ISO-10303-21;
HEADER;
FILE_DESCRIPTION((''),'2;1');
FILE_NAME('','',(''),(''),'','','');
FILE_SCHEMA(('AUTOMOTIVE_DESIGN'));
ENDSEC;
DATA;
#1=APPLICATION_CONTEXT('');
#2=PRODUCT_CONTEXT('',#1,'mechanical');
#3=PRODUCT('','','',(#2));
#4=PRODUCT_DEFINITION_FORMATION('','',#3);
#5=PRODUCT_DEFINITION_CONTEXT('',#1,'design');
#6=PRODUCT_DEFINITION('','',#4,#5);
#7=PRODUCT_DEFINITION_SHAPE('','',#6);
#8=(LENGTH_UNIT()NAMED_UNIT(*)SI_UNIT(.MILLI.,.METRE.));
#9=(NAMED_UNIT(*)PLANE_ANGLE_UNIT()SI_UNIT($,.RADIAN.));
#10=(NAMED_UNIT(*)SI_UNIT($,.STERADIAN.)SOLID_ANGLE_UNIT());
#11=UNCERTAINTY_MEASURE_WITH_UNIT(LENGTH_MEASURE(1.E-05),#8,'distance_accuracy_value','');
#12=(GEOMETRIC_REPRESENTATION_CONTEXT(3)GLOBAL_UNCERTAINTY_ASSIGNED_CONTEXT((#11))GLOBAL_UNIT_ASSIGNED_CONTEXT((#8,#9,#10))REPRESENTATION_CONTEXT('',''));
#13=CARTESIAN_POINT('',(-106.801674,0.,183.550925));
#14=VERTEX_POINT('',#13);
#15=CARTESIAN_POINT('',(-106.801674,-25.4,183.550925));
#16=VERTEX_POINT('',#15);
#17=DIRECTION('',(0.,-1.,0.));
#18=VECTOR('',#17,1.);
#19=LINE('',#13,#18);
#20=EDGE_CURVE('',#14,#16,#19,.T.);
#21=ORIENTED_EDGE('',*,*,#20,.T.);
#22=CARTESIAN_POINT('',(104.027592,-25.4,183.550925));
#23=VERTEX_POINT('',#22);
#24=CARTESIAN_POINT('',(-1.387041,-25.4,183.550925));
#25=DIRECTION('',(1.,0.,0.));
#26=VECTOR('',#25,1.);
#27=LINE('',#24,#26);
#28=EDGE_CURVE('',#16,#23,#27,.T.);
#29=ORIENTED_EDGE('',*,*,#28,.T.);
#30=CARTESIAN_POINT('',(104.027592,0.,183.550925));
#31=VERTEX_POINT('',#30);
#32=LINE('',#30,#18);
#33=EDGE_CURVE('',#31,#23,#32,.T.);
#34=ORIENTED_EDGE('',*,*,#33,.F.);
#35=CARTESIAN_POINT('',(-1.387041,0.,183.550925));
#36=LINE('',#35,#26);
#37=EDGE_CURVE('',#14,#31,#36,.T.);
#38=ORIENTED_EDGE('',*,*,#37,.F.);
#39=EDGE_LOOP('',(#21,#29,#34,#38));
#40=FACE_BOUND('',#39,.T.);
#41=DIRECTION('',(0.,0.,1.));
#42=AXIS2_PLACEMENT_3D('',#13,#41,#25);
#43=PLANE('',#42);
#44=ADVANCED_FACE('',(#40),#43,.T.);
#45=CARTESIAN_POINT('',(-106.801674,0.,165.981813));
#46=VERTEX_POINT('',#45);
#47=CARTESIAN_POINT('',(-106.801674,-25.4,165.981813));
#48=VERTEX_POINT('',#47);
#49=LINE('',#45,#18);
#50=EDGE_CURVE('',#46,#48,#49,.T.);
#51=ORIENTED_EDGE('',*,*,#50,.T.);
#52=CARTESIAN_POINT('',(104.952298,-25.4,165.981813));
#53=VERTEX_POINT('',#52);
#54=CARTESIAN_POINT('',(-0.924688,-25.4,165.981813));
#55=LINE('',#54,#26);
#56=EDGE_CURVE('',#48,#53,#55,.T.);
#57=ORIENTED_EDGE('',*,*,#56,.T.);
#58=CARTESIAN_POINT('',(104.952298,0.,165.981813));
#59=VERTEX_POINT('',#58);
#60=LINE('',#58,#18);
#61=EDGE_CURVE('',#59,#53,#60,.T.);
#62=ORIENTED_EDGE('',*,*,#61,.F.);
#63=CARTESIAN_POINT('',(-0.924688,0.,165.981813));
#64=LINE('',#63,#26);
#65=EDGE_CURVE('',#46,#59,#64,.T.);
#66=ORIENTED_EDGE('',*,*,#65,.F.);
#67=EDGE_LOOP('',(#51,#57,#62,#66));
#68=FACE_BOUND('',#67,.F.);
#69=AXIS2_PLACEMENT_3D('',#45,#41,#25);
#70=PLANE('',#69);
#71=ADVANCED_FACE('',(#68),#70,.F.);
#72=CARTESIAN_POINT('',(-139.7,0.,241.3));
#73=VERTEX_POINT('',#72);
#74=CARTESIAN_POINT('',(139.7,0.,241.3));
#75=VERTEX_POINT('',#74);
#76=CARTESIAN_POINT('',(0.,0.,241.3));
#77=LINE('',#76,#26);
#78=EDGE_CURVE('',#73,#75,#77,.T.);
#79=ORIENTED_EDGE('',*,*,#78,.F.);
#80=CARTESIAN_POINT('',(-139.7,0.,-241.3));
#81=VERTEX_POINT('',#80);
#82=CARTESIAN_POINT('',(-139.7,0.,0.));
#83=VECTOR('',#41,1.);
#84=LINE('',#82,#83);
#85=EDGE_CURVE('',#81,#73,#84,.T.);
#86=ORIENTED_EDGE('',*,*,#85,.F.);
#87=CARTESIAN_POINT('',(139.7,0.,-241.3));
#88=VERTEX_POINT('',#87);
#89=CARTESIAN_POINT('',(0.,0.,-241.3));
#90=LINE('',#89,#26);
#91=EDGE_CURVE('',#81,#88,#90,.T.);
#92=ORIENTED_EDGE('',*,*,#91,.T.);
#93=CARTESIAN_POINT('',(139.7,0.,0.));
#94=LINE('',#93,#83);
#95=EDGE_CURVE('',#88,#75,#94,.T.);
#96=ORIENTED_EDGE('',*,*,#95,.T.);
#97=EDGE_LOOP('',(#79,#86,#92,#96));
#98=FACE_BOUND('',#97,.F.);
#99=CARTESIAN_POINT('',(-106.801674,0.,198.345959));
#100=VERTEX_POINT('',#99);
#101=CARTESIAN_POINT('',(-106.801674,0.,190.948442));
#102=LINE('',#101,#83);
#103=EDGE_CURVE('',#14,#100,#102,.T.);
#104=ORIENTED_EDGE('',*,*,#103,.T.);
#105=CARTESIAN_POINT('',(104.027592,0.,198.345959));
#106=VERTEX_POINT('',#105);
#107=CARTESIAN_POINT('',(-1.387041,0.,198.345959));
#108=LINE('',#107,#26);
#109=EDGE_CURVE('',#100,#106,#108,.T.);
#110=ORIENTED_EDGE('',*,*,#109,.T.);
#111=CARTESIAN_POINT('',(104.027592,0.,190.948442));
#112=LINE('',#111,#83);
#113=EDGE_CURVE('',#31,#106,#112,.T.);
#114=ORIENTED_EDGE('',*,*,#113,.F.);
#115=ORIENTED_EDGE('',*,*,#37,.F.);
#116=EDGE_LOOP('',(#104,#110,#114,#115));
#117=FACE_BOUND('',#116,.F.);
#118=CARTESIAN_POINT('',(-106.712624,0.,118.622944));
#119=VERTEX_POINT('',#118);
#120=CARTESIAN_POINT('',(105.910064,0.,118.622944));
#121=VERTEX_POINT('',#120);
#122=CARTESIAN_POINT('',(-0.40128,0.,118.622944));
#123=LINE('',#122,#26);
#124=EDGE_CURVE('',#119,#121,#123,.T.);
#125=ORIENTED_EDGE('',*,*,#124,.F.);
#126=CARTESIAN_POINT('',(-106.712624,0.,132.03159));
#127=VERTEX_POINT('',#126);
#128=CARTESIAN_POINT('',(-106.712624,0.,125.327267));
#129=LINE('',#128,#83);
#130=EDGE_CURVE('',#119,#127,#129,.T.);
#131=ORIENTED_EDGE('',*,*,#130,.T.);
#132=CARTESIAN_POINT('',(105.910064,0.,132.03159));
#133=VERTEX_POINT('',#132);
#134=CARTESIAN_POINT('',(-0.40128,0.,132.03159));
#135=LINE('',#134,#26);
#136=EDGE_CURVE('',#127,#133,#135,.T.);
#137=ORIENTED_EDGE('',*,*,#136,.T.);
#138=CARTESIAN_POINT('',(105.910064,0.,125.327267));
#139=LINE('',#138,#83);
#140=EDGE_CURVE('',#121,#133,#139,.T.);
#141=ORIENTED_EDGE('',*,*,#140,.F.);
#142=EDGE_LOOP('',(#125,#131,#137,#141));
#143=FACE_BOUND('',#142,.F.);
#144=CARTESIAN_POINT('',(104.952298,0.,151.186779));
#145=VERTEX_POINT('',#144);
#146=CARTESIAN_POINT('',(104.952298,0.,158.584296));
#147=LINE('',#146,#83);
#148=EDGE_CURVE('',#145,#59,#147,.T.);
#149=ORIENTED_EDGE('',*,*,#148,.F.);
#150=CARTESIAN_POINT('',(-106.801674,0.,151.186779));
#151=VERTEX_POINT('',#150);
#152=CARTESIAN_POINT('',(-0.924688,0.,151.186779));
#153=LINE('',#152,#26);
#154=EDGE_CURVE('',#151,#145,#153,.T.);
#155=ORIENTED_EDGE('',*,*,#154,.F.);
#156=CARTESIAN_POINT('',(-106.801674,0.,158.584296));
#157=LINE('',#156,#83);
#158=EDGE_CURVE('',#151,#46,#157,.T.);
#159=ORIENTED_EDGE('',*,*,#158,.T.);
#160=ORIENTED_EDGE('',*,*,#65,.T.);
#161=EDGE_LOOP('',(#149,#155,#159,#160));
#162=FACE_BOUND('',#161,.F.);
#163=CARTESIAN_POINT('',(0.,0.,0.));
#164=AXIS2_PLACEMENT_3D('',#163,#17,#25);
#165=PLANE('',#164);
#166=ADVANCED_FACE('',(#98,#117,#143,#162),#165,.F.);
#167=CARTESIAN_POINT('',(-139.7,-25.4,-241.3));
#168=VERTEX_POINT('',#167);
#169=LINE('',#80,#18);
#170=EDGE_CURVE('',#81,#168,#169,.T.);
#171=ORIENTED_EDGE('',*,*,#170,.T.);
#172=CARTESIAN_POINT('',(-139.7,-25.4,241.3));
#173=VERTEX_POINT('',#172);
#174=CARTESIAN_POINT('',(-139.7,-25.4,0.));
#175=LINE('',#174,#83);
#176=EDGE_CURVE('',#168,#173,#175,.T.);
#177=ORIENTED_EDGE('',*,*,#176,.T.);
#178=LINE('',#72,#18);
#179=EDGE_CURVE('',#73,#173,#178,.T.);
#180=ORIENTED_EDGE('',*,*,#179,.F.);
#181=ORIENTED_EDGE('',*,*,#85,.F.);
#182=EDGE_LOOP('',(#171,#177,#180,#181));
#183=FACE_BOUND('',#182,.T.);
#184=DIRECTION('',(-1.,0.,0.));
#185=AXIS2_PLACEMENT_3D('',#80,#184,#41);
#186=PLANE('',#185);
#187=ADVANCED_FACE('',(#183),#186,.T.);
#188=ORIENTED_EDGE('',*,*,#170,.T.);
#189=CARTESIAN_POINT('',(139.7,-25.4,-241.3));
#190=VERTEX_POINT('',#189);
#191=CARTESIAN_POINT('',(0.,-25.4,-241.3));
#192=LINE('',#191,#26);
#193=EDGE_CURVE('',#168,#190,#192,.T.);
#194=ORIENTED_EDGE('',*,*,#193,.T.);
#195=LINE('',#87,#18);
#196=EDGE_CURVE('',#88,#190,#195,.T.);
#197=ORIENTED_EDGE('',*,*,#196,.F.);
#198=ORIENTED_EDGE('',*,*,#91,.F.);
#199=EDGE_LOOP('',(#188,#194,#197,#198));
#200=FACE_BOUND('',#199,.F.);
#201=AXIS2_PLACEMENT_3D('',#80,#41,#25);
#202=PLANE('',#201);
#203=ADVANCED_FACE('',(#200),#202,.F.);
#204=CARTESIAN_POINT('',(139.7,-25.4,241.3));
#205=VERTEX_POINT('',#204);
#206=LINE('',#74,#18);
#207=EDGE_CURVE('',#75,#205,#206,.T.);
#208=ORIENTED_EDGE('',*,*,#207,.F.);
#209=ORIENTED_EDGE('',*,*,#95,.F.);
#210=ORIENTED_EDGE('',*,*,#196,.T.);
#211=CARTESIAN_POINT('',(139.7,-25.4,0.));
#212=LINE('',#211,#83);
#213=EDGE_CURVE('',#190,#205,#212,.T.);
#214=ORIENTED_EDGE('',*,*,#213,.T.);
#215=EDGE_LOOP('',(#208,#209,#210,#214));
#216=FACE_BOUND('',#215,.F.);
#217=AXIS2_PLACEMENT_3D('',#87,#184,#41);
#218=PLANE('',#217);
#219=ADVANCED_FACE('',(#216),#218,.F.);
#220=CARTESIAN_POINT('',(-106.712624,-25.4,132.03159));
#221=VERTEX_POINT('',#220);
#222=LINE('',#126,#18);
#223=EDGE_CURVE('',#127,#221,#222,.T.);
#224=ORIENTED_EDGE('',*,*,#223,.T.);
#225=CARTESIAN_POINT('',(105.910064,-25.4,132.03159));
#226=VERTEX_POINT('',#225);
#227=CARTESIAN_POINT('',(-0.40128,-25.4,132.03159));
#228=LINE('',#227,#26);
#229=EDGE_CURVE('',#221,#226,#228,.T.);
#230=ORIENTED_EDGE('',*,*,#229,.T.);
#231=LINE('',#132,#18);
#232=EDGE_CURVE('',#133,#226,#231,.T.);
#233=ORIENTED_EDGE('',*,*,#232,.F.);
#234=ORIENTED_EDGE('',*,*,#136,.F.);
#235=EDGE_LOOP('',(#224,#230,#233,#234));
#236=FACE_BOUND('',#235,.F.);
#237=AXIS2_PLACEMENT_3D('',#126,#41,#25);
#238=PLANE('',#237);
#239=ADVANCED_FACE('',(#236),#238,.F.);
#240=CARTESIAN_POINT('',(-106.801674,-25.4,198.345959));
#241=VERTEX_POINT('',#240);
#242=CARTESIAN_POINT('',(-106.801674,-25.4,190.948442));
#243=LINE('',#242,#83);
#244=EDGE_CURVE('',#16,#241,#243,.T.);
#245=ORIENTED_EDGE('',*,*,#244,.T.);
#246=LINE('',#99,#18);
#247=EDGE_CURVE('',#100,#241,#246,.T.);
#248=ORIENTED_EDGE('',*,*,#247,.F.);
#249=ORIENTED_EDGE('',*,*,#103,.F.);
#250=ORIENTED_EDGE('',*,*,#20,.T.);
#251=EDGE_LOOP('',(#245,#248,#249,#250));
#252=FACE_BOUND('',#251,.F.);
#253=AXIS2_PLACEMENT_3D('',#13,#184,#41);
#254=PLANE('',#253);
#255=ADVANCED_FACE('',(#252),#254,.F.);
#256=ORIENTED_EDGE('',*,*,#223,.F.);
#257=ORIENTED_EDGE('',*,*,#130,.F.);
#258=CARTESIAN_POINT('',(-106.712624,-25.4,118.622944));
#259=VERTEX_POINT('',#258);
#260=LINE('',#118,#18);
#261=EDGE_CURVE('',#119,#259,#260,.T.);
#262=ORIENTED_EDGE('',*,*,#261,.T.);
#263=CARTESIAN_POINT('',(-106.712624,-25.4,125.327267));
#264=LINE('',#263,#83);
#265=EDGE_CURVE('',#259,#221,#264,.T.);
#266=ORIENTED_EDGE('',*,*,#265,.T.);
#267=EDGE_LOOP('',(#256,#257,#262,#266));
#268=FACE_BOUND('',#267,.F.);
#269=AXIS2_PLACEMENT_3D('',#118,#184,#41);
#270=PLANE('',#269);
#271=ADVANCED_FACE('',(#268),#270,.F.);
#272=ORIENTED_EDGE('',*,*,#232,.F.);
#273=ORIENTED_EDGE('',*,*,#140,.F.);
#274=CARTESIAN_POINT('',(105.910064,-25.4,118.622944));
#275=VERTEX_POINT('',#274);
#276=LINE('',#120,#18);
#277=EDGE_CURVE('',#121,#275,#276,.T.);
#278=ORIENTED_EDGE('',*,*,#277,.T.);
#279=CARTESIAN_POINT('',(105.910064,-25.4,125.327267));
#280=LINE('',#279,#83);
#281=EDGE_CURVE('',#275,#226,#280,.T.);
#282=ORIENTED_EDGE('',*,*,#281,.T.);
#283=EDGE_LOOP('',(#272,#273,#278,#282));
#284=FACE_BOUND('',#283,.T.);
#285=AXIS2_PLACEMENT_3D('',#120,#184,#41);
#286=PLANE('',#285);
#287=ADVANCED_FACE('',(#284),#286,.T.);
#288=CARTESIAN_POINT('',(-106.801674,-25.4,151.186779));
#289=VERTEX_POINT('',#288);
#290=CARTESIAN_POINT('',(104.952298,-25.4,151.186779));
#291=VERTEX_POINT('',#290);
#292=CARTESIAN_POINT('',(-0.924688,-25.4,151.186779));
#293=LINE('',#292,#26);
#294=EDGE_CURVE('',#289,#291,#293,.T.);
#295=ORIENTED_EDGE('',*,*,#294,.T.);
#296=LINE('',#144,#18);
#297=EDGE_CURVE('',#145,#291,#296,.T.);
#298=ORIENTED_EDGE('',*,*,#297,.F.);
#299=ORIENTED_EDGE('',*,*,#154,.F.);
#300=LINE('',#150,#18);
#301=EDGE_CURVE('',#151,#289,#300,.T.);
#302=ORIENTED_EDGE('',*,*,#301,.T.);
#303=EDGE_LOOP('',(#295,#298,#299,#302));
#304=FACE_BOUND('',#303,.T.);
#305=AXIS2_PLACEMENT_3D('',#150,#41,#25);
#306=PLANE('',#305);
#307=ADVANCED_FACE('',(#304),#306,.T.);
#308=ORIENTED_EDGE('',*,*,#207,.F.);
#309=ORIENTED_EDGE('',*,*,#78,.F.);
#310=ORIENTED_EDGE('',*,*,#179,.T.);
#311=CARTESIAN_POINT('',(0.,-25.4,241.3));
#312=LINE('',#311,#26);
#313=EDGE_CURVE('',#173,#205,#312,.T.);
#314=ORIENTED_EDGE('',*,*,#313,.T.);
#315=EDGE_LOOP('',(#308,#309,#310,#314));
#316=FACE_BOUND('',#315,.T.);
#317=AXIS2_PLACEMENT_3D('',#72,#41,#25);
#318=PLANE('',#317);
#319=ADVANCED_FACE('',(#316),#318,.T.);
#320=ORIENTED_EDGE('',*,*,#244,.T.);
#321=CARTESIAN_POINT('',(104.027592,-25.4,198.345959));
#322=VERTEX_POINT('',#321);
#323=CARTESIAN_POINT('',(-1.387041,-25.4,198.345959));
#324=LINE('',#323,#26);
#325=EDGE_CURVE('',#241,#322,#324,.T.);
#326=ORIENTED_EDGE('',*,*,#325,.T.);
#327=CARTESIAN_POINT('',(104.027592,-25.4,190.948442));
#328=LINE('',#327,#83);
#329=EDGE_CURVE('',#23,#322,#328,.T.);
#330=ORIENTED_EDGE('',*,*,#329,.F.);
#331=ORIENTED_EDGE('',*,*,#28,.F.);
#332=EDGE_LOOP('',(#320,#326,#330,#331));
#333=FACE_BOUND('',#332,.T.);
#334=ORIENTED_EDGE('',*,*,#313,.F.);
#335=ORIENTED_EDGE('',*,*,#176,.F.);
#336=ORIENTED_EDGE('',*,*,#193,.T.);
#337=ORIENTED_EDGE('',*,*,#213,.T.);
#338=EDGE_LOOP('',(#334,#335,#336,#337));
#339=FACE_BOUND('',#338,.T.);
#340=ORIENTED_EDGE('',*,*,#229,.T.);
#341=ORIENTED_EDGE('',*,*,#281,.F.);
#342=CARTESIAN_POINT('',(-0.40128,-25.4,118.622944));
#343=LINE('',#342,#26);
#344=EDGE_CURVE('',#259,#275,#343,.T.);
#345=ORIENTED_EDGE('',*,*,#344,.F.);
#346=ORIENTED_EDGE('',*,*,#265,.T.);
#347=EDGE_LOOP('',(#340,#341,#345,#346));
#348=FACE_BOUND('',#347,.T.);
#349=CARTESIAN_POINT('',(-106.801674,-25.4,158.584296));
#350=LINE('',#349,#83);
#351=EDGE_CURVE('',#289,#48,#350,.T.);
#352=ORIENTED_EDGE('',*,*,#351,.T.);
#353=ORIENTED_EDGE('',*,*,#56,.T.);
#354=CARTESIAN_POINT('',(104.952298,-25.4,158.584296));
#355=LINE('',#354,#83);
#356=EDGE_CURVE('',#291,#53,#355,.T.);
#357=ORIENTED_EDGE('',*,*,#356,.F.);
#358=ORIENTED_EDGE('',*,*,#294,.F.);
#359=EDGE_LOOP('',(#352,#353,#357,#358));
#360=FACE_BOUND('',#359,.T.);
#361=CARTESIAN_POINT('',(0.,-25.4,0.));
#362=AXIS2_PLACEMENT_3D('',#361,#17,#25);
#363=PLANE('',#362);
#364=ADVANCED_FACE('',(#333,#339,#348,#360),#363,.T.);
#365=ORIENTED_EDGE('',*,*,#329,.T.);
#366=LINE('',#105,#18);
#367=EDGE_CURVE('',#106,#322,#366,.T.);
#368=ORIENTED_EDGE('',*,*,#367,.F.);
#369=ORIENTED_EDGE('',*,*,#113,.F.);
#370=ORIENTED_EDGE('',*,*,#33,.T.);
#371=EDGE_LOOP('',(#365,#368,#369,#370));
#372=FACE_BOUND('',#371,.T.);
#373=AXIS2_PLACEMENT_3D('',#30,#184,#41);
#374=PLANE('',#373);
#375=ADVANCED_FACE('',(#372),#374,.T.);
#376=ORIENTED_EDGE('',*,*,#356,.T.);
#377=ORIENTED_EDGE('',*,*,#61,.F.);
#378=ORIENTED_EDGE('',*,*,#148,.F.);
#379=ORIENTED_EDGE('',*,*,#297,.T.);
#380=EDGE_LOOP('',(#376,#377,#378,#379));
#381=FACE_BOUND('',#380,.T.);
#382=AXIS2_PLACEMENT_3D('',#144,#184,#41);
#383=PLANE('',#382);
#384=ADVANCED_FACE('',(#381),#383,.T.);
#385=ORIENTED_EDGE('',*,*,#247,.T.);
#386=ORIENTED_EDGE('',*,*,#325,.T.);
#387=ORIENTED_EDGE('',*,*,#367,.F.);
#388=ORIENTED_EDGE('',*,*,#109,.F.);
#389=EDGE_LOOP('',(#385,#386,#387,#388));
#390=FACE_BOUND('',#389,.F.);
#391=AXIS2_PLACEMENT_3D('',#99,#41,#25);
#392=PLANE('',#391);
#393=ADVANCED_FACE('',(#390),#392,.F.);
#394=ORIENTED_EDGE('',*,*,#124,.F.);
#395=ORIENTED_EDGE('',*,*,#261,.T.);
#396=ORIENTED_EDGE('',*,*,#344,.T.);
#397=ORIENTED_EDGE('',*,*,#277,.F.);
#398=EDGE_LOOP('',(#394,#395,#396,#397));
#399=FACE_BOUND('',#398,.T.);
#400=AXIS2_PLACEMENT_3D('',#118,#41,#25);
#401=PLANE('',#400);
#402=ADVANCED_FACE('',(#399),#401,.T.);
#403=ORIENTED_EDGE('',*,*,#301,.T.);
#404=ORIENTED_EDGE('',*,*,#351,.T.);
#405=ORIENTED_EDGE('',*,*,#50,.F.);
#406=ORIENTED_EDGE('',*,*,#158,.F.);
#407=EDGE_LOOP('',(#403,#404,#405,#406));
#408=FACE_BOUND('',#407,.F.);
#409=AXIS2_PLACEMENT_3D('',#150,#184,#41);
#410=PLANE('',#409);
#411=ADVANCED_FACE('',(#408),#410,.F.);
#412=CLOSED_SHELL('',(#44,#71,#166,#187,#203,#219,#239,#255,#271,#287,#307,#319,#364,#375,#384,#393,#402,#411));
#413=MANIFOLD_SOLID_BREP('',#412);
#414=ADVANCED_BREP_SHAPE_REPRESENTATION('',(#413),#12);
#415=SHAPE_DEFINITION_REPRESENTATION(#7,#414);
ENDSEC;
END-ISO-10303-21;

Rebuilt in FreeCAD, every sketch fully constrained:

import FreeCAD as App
import Part
import Sketcher

V = App.Vector
Q = App.Units.Quantity


def add_polygon(sketch, points):
    """Adds a closed chain of lines whose ends are joined by coincident constraints."""
    first, n = sketch.GeometryCount, len(points)
    for a, b in zip(points, points[1:] + points[:1]):
        sketch.addGeometry(Part.LineSegment(App.Vector(*a, 0), App.Vector(*b, 0)), False)
    for i in range(n):
        sketch.addConstraint(Sketcher.Constraint("Coincident", first + i, 2, first + (i + 1) % n, 1))

doc = App.newDocument("Part")
body = doc.addObject("PartDesign::Body", "Body")

# Sketch on XZ plane
sketch1 = body.newObject("Sketcher::SketchObject", "Sketch")
sketch1.AttachmentSupport = (doc.getObject("XZ_Plane"), [""])
sketch1.MapMode = "FlatFace"
add_polygon(sketch1, [(-140, 241), (-140, -241), (140, -241), (140, 241)])  # lines 0-3
add_polygon(sketch1, [(106, 119), (-107, 119), (-107, 132), (106, 132)])  # lines 4-7
add_polygon(sketch1, [(105, 151), (-107, 151), (-107, 166), (105, 166)])  # lines 8-11
add_polygon(sketch1, [(104, 184), (-107, 184), (-107, 198), (104, 198)])  # lines 12-15
sketch1.addConstraint(Sketcher.Constraint("Vertical", 0))
sketch1.addConstraint(Sketcher.Constraint("Horizontal", 1))
sketch1.addConstraint(Sketcher.Constraint("Vertical", 2))
sketch1.addConstraint(Sketcher.Constraint("Horizontal", 3))
sketch1.addConstraint(Sketcher.Constraint("Horizontal", 4))
sketch1.addConstraint(Sketcher.Constraint("Vertical", 5))
sketch1.addConstraint(Sketcher.Constraint("Horizontal", 6))
sketch1.addConstraint(Sketcher.Constraint("Vertical", 7))
sketch1.addConstraint(Sketcher.Constraint("Horizontal", 8))
sketch1.addConstraint(Sketcher.Constraint("Vertical", 9))
sketch1.addConstraint(Sketcher.Constraint("Horizontal", 10))
sketch1.addConstraint(Sketcher.Constraint("Vertical", 11))
sketch1.addConstraint(Sketcher.Constraint("Horizontal", 12))
sketch1.addConstraint(Sketcher.Constraint("Vertical", 13))
sketch1.addConstraint(Sketcher.Constraint("Horizontal", 14))
sketch1.addConstraint(Sketcher.Constraint("Vertical", 15))
sketch1.addConstraint(Sketcher.Constraint("Symmetric", 0, 2, 2, 2, -1, 1))
sketch1.addConstraint(Sketcher.Constraint("Vertical", 9, 2, 12, 2))
sketch1.addConstraint(Sketcher.Constraint("Equal", 11, 13))
sketch1.addConstraint(Sketcher.Constraint("DistanceX", 1, 1, 1, 2, Q("11 in")))
sketch1.addConstraint(Sketcher.Constraint("DistanceY", 0, 2, 0, 1, Q("19 in")))
sketch1.addConstraint(Sketcher.Constraint("DistanceX", 8, 2, 8, 1, Q("211.753972 mm")))
sketch1.addConstraint(Sketcher.Constraint("DistanceX", -1, 1, 10, 2, Q("104.952298 mm")))
sketch1.addConstraint(Sketcher.Constraint("DistanceX", 4, 2, 4, 1, Q("212.622687 mm")))
sketch1.addConstraint(Sketcher.Constraint("DistanceX", 12, 2, 12, 1, Q("210.829266 mm")))
sketch1.addConstraint(Sketcher.Constraint("DistanceY", 5, 1, 5, 2, Q("13.408646 mm")))
sketch1.addConstraint(Sketcher.Constraint("DistanceY", 9, 1, 9, 2, Q("14.795035 mm")))
sketch1.addConstraint(Sketcher.Constraint("DistanceY", -1, 1, 5, 2, Q("132.03159 mm")))
sketch1.addConstraint(Sketcher.Constraint("DistanceY", -1, 1, 8, 2, Q("151.186779 mm")))
sketch1.addConstraint(Sketcher.Constraint("DistanceY", -1, 1, 13, 2, Q("198.345959 mm")))
sketch1.addConstraint(Sketcher.Constraint("DistanceX", 8, 2, 5, 2, Q("0.08905 mm")))
pad1 = body.newObject("PartDesign::Pad", "Pad")
pad1.Profile = sketch1
pad1.Length = Q("1 in")

doc.recompute()
